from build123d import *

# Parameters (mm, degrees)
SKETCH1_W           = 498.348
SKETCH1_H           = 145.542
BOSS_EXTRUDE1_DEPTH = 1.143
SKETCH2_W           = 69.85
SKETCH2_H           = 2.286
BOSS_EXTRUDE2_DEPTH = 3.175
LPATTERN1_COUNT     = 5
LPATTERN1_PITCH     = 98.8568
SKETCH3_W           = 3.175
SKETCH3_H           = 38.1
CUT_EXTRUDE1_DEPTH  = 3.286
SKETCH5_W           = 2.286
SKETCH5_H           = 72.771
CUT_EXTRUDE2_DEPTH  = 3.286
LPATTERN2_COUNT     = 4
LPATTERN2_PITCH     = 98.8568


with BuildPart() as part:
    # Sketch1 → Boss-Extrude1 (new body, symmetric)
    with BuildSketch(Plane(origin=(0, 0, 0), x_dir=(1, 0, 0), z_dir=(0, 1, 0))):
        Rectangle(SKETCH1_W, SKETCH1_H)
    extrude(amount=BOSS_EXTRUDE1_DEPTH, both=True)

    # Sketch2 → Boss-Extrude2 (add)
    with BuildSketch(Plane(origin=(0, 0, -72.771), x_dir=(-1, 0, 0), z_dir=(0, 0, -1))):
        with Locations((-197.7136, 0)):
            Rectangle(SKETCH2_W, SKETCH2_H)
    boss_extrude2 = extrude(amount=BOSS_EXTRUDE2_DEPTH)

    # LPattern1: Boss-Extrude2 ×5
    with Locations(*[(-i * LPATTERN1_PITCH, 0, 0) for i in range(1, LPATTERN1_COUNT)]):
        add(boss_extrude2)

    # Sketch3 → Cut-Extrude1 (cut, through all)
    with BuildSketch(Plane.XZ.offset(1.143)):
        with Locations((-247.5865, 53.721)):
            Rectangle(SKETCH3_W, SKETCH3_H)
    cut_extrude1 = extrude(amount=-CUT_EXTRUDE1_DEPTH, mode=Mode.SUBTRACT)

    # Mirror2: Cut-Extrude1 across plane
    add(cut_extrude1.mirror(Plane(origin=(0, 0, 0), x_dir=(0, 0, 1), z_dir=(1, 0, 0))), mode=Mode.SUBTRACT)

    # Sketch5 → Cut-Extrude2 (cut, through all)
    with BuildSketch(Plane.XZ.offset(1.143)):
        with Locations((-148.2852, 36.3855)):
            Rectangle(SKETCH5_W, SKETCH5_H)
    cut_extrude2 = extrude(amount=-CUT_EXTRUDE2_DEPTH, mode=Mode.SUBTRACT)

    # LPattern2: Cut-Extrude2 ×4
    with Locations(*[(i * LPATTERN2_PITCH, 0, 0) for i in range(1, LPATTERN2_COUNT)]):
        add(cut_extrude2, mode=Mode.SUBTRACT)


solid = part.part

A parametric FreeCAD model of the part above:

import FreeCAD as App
import Part
import Sketcher
Q = App.Units.Quantity


def add_polygon(sketch, points):
    """Adds a closed chain of lines whose ends are joined by coincident constraints."""
    first, n = sketch.GeometryCount, len(points)
    for a, b in zip(points, points[1:] + points[:1]):
        sketch.addGeometry(Part.LineSegment(App.Vector(*a, 0), App.Vector(*b, 0)), False)
    for i in range(n):
        sketch.addConstraint(Sketcher.Constraint("Coincident", first + i, 2, first + (i + 1) % n, 1))

doc = App.newDocument("Part")
params = doc.addObject("Spreadsheet::Sheet", "Params")
for row, (alias, value) in enumerate([
    ("sketch1_width", "19.62 in"),
    ("sketch1_height", "5.73 in"),
    ("pad1_length", "0.09 in"),
    ("sketch2_width", "2.75 in"),
    ("sketch2_height", "0.09 in"),
    ("pad2_length", "0.125 in"),
    ("linearpattern_pitch", "3.892 in"),
    ("sketch3_height", "1.5 in"),
    ("sketch3_width", "0.125 in"),
    ("sketch4_width", "0.09 in"),
    ("sketch4_height", "2.865 in"),
    ("linearpattern2_pitch", "3.892 in"),
], start=1):
    params.set(f"A{row}", alias)
    params.set(f"B{row}", "=" + value)
    params.setAlias(f"B{row}", alias)

body = doc.addObject("PartDesign::Body", "Body")

# Sketch on XZ plane
sketch1 = body.newObject("Sketcher::SketchObject", "Sketch")
sketch1.AttachmentSupport = (doc.getObject("XZ_Plane"), [""])
sketch1.MapMode = "FlatFace"
add_polygon(sketch1, [(-249, -73), (-249, 73), (249, 73), (249, -73)])  # lines 0-3
sketch1.addConstraint([
    Sketcher.Constraint("Vertical", 0),
    Sketcher.Constraint("Horizontal", 1),
    Sketcher.Constraint("Vertical", 2),
    Sketcher.Constraint("Horizontal", 3),
    Sketcher.Constraint("Symmetric", 0, 2, 2, 2, -1, 1),
    Sketcher.Constraint("DistanceX", 1, 1, 1, 2, Q("19.62 in")),
    Sketcher.Constraint("DistanceY", 0, 1, 0, 2, Q("5.73 in")),
])
sketch1.setExpression("Constraints[9]", "Params.sketch1_width")
sketch1.setExpression("Constraints[10]", "Params.sketch1_height")
pad1 = body.newObject("PartDesign::Pad", "Pad")
pad1.Profile = sketch1
pad1.setExpression("Length", "Params.pad1_length")
pad1.Midplane = True

# Sketch on XY plane
sketch2 = body.newObject("Sketcher::SketchObject", "Sketch001")
sketch2.AttachmentSupport = (doc.getObject("XY_Plane"), [""])
sketch2.MapMode = "FlatFace"
sketch2.AttachmentOffset = App.Placement(App.Vector(0, 0, -2.865 * 25.4), App.Rotation())
add_polygon(sketch2, [(232.6, 1.1), (232.6, -1.1), (162.8, -1.1), (162.8, 1.1)])  # lines 0-3
sketch2.addConstraint([
    Sketcher.Constraint("Vertical", 0),
    Sketcher.Constraint("Horizontal", 1),
    Sketcher.Constraint("Vertical", 2),
    Sketcher.Constraint("Horizontal", 3),
    Sketcher.Constraint("DistanceX", 1, 2, 1, 1, Q("2.75 in")),
    Sketcher.Constraint("DistanceY", 0, 2, 0, 1, Q("0.09 in")),
    Sketcher.Constraint("DistanceX", -1, 1, 0, 2, Q("9.159 in")),
    Sketcher.Constraint("DistanceY", 0, 2, -1, 1, Q("0.045 in")),
])
sketch2.setExpression("Constraints[8]", "Params.sketch2_width")
sketch2.setExpression("Constraints[9]", "Params.sketch2_height")
pad2 = body.newObject("PartDesign::Pad", "Pad001")
pad2.Profile = sketch2
pad2.setExpression("Length", "Params.pad2_length")
pad2.Reversed = True
doc.recompute()

linearpattern = body.newObject("PartDesign::LinearPattern", "LinearPattern")
linearpattern.Originals = [pad2]
linearpattern.Direction = (doc.getObject("X_Axis"), [""])
linearpattern.Mode = "offset"
linearpattern.setExpression("Offset", "Params.linearpattern_pitch")
linearpattern.Occurrences = 5
linearpattern.Reversed = True
body.Tip = linearpattern

# Sketch on XZ plane
sketch3 = body.newObject("Sketcher::SketchObject", "Sketch002")
sketch3.AttachmentSupport = (doc.getObject("XZ_Plane"), [""])
sketch3.MapMode = "FlatFace"
sketch3.AttachmentOffset = App.Placement(App.Vector(0, 0, 0.045 * 25.4), App.Rotation())
add_polygon(sketch3, [(-249.2, 72.8), (-249.2, 34.7), (-246, 34.7), (-246, 72.8)])  # lines 0-3
sketch3.addConstraint([
    Sketcher.Constraint("Vertical", 0),
    Sketcher.Constraint("Horizontal", 1),
    Sketcher.Constraint("Vertical", 2),
    Sketcher.Constraint("Horizontal", 3),
    Sketcher.Constraint("DistanceY", 0, 2, 0, 1, Q("1.5 in")),
    Sketcher.Constraint("DistanceX", 1, 1, 1, 2, Q("0.125 in")),
    Sketcher.Constraint("DistanceX", 0, 2, -1, 1, Q("9.81 in")),
    Sketcher.Constraint("DistanceY", -1, 1, 0, 2, Q("1.365 in")),
])
sketch3.setExpression("Constraints[8]", "Params.sketch3_height")
sketch3.setExpression("Constraints[9]", "Params.sketch3_width")
pocket1 = body.newObject("PartDesign::Pocket", "Pocket")
pocket1.Profile = sketch3
pocket1.Type = "ThroughAll"
doc.recompute()

mirrored = body.newObject("PartDesign::Mirrored", "Mirrored")
mirrored.Originals = [pocket1]
mirrored.MirrorPlane = (doc.getObject("YZ_Plane"), [""])
body.Tip = mirrored

# Sketch on XZ plane
sketch4 = body.newObject("Sketcher::SketchObject", "Sketch003")
sketch4.AttachmentSupport = (doc.getObject("XZ_Plane"), [""])
sketch4.MapMode = "FlatFace"
sketch4.AttachmentOffset = App.Placement(App.Vector(0, 0, 0.045 * 25.4), App.Rotation())
add_polygon(sketch4, [(-149.4, 72.8), (-149.4, 0), (-147.1, 0), (-147.1, 72.8)])  # lines 0-3
sketch4.addConstraint([
    Sketcher.Constraint("Vertical", 0),
    Sketcher.Constraint("Horizontal", 1),
    Sketcher.Constraint("Vertical", 2),
    Sketcher.Constraint("Horizontal", 3),
    Sketcher.Constraint("PointOnObject", 0, 2, -1),
    Sketcher.Constraint("DistanceX", 1, 1, 1, 2, Q("0.09 in")),
    Sketcher.Constraint("DistanceY", 0, 2, 0, 1, Q("2.865 in")),
    Sketcher.Constraint("DistanceX", 0, 2, -1, 1, Q("5.883 in")),
])
sketch4.setExpression("Constraints[9]", "Params.sketch4_width")
sketch4.setExpression("Constraints[10]", "Params.sketch4_height")
pocket2 = body.newObject("PartDesign::Pocket", "Pocket001")
pocket2.Profile = sketch4
pocket2.Type = "ThroughAll"
doc.recompute()

linearpattern2 = body.newObject("PartDesign::LinearPattern", "LinearPattern001")
linearpattern2.Originals = [pocket2]
linearpattern2.Direction = (doc.getObject("X_Axis"), [""])
linearpattern2.Mode = "offset"
linearpattern2.setExpression("Offset", "Params.linearpattern2_pitch")
linearpattern2.Occurrences = 4
body.Tip = linearpattern2

doc.recompute()
